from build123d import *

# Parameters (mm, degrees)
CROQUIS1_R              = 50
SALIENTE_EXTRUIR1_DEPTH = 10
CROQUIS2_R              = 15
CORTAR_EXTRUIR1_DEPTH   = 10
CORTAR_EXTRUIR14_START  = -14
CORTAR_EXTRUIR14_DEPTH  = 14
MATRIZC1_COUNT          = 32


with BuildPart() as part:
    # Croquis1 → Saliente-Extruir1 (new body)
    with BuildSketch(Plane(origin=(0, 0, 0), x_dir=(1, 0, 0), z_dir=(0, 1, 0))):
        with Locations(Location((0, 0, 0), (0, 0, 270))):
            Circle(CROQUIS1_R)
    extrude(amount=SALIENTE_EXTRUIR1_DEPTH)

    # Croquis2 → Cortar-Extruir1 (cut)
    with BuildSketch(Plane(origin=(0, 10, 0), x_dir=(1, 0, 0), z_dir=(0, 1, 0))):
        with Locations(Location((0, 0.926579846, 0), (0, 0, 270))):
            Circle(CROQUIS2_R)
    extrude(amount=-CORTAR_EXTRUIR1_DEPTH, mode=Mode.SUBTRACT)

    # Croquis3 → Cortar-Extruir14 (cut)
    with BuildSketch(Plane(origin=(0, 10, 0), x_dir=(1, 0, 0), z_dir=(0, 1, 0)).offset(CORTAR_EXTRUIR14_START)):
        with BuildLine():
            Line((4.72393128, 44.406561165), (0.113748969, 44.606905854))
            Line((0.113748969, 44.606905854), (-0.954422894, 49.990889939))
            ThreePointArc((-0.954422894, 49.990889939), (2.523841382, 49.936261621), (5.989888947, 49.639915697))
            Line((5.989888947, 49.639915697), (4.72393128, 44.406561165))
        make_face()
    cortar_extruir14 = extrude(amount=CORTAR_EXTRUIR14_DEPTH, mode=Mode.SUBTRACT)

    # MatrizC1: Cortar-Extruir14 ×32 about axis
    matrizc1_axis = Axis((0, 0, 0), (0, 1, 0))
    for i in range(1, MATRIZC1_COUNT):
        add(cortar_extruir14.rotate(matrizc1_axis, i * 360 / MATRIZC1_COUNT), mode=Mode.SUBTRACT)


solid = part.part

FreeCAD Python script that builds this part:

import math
import FreeCAD as App
import Part
import Sketcher
Q = App.Units.Quantity

doc = App.newDocument("Part")
params = doc.addObject("Spreadsheet::Sheet", "Params")
for row, (alias, value) in enumerate([
    ("sketch1_diameter", "100 mm"),
    ("pad1_length", "10 mm"),
    ("sketch2_diameter", "30 mm"),
    ("pocket1_length", "10 mm"),
    ("sketch3_radius", "50 mm"),
    ("pocket2_length", "14 mm"),
], start=1):
    params.set(f"A{row}", alias)
    params.set(f"B{row}", "=" + value)
    params.setAlias(f"B{row}", alias)

body = doc.addObject("PartDesign::Body", "Body")

# Sketch on XZ plane
sketch1 = body.newObject("Sketcher::SketchObject", "Sketch")
sketch1.AttachmentSupport = (doc.getObject("XZ_Plane"), [""])
sketch1.MapMode = "FlatFace"
sketch1.addGeometry(Part.Circle(App.Vector(0, 0, 0), App.Vector(0, 0, 1), 50), False)
sketch1.addConstraint([
    Sketcher.Constraint("Coincident", 0, 3, -1, 1),
    Sketcher.Constraint("Diameter", 0, Q("100 mm")),
])
sketch1.setExpression("Constraints[1]", "Params.sketch1_diameter")
pad1 = body.newObject("PartDesign::Pad", "Pad")
pad1.Profile = sketch1
pad1.setExpression("Length", "Params.pad1_length")
pad1.Reversed = True

# Sketch on XZ plane
sketch2 = body.newObject("Sketcher::SketchObject", "Sketch001")
sketch2.AttachmentSupport = (doc.getObject("XZ_Plane"), [""])
sketch2.MapMode = "FlatFace"
sketch2.AttachmentOffset = App.Placement(App.Vector(0, 0, -10), App.Rotation())
sketch2.addGeometry(Part.Circle(App.Vector(0, -1, 0), App.Vector(0, 0, 1), 15), False)
sketch2.addConstraint([
    Sketcher.Constraint("PointOnObject", 0, 3, -2),
    Sketcher.Constraint("Diameter", 0, Q("30 mm")),
    Sketcher.Constraint("DistanceY", 0, 3, -1, 1, Q("0.92658 mm")),
])
sketch2.setExpression("Constraints[1]", "Params.sketch2_diameter")
pocket1 = body.newObject("PartDesign::Pocket", "Pocket")
pocket1.Profile = sketch2
pocket1.setExpression("Length", "Params.pocket1_length")
pocket1.Reversed = True

# Sketch on XZ plane
sketch3 = body.newObject("Sketcher::SketchObject", "Sketch002")
sketch3.AttachmentSupport = (doc.getObject("XZ_Plane"), [""])
sketch3.MapMode = "FlatFace"
sketch3.AttachmentOffset = App.Placement(App.Vector(0, 0, 4), App.Rotation())
sketch3.addGeometry([
    Part.LineSegment(App.Vector(0.1, -44.6, 0), App.Vector(4.7, -44.4, 0)),
    Part.LineSegment(App.Vector(4.7, -44.4, 0), App.Vector(6, -49.6, 0)),
    Part.ArcOfCircle(Part.Circle(App.Vector(0, 0, 0), App.Vector(0, 0, 1), 50), math.radians(-91.09), math.radians(-83.12)),
    Part.LineSegment(App.Vector(-1, -50, 0), App.Vector(0.1, -44.6, 0)),
], False)
sketch3.addConstraint([
    Sketcher.Constraint("Coincident", 0, 2, 1, 1),
    Sketcher.Constraint("Coincident", 1, 2, 2, 2),
    Sketcher.Constraint("Coincident", 2, 1, 3, 1),
    Sketcher.Constraint("Coincident", 3, 2, 0, 1),
    Sketcher.Constraint("Coincident", 2, 3, -1, 1),
    Sketcher.Constraint("Radius", 2, Q("50 mm")),
    Sketcher.Constraint("DistanceX", -1, 1, 0, 2, Q("4.723931 mm")),
    Sketcher.Constraint("DistanceY", 0, 2, -1, 1, Q("44.406561 mm")),
    Sketcher.Constraint("DistanceX", -1, 1, 1, 2, Q("5.989889 mm")),
    Sketcher.Constraint("DistanceY", 2, 1, -1, 1, Q("49.99089 mm")),
    Sketcher.Constraint("DistanceX", -1, 1, 3, 2, Q("0.113749 mm")),
    Sketcher.Constraint("DistanceY", 1, 2, 3, 2, Q("5.03301 mm")),
])
sketch3.setExpression("Constraints[5]", "Params.sketch3_radius")
pocket2 = body.newObject("PartDesign::Pocket", "Pocket001")
pocket2.Profile = sketch3
pocket2.setExpression("Length", "Params.pocket2_length")
doc.recompute()

polarpattern = body.newObject("PartDesign::PolarPattern", "PolarPattern")
polarpattern.Originals = [pocket2]
polarpattern.Axis = (doc.getObject("Y_Axis"), [""])
polarpattern.Angle = 360
polarpattern.Occurrences = 32
body.Tip = polarpattern

doc.recompute()
